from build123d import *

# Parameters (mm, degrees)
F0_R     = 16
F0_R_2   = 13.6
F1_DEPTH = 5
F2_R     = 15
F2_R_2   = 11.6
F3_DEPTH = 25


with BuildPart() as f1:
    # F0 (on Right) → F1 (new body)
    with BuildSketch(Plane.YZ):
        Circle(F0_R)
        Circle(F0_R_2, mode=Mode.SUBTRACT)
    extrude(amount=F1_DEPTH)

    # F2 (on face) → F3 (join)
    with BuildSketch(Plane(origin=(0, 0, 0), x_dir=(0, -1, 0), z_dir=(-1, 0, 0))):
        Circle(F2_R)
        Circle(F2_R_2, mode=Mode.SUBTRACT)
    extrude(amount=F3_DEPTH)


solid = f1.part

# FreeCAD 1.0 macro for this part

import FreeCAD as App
import Part
import Sketcher

V = App.Vector

doc = App.newDocument("Part")
body = doc.addObject("PartDesign::Body", "Body")

sketch1 = doc.addObject("Sketcher::SketchObject", "Sketch")
body.addObject(sketch1)
sketch1.AttachmentSupport = (doc.YZ_Plane, [""])
sketch1.MapMode = "FlatFace"
sketch1.addGeometry([
    Part.Circle(V(0, 0, 0), V(0, 0, 1), 16),
    Part.Circle(V(0, 0, 0), V(0, 0, 1), 14),
], False)
sketch1.addConstraint([
    Sketcher.Constraint("Coincident", 0, 3, -1, 1),
    Sketcher.Constraint("Coincident", 1, 3, -1, 1),
    Sketcher.Constraint("Diameter", 0, 32.0),
    Sketcher.Constraint("Diameter", 1, 27.2),
])
pad1 = doc.addObject("PartDesign::Pad", "Pad")
body.addObject(pad1)
pad1.Profile = sketch1
pad1.Length = 5

sketch2 = doc.addObject("Sketcher::SketchObject", "Sketch001")
body.addObject(sketch2)
sketch2.AttachmentSupport = (doc.YZ_Plane, [""])
sketch2.MapMode = "FlatFace"
sketch2.addGeometry([
    Part.Circle(V(0, 0, 0), V(0, 0, 1), 15),
    Part.Circle(V(0, 0, 0), V(0, 0, 1), 12),
], False)
sketch2.addConstraint([
    Sketcher.Constraint("Coincident", 0, 3, -1, 1),
    Sketcher.Constraint("Coincident", 1, 3, -1, 1),
    Sketcher.Constraint("Diameter", 0, 30.0),
    Sketcher.Constraint("Diameter", 1, 23.2),
])
pad2 = doc.addObject("PartDesign::Pad", "Pad001")
body.addObject(pad2)
pad2.Profile = sketch2
pad2.Length = 25
pad2.Reversed = True

doc.recompute()
